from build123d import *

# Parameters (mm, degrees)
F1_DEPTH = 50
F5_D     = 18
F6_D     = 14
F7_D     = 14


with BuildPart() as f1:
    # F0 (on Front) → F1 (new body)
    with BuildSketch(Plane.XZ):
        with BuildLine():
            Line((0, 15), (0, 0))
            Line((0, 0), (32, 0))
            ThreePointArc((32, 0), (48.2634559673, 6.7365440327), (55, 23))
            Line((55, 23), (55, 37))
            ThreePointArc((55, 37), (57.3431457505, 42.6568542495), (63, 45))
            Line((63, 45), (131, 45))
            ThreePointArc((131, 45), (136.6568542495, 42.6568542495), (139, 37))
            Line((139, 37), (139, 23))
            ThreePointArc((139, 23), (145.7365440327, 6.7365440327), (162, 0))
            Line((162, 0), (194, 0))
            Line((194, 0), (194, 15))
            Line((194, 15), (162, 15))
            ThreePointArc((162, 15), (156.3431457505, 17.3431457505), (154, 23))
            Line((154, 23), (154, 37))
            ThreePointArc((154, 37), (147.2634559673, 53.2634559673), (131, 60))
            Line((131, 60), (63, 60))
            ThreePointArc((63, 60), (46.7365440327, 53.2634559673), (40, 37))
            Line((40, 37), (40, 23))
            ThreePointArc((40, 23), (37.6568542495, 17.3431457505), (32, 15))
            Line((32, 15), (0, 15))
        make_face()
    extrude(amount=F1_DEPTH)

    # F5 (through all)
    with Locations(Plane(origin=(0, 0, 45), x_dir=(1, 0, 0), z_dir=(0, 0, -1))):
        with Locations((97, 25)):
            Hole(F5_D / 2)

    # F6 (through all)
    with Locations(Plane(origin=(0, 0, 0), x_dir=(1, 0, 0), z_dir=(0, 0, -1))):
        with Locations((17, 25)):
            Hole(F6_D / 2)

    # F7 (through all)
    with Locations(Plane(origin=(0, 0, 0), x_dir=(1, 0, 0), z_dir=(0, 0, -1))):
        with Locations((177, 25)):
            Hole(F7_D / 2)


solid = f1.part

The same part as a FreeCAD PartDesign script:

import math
import FreeCAD as App
import Part
import Sketcher
from FreeCAD import Vector
Q = App.Units.Quantity

doc = App.newDocument("Part")
body = doc.addObject("PartDesign::Body", "Body")

# Sketch on XZ plane
sketch1 = doc.addObject("Sketcher::SketchObject", "Sketch")
body.addObject(sketch1)
sketch1.AttachmentSupport = (doc.XZ_Plane, [""])
sketch1.MapMode = "FlatFace"
sketch1.addGeometry([
    Part.LineSegment(Vector(0, 15, 0), Vector(0, 0, 0)),  # 0
    Part.LineSegment(Vector(0, 0, 0), Vector(32, 0, 0)),  # 1
    Part.ArcOfCircle(Part.Circle(Vector(32, 23, 0), Vector(0, 0, 1), 23), math.radians(-90), math.radians(0)),  # 2
    Part.LineSegment(Vector(55, 23, 0), Vector(55, 37, 0)),  # 3
    Part.ArcOfCircle(Part.Circle(Vector(63, 37, 0), Vector(0, 0, 1), 8), math.radians(90), math.radians(180)),  # 4
    Part.LineSegment(Vector(63, 45, 0), Vector(131, 45, 0)),  # 5
    Part.ArcOfCircle(Part.Circle(Vector(131, 37, 0), Vector(0, 0, 1), 8), math.radians(0), math.radians(90)),  # 6
    Part.LineSegment(Vector(139, 37, 0), Vector(139, 23, 0)),  # 7
    Part.ArcOfCircle(Part.Circle(Vector(162, 23, 0), Vector(0, 0, 1), 23), math.radians(180), math.radians(270)),  # 8
    Part.LineSegment(Vector(162, 0, 0), Vector(194, 0, 0)),  # 9
    Part.LineSegment(Vector(194, 0, 0), Vector(194, 15, 0)),  # 10
    Part.LineSegment(Vector(194, 15, 0), Vector(162, 15, 0)),  # 11
    Part.ArcOfCircle(Part.Circle(Vector(162, 23, 0), Vector(0, 0, 1), 8), math.radians(180), math.radians(270)),  # 12
    Part.LineSegment(Vector(154, 23, 0), Vector(154, 37, 0)),  # 13
    Part.ArcOfCircle(Part.Circle(Vector(131, 37, 0), Vector(0, 0, 1), 23), math.radians(0), math.radians(90)),  # 14
    Part.LineSegment(Vector(131, 60, 0), Vector(63, 60, 0)),  # 15
    Part.ArcOfCircle(Part.Circle(Vector(63, 37, 0), Vector(0, 0, 1), 23), math.radians(90), math.radians(180)),  # 16
    Part.LineSegment(Vector(40, 37, 0), Vector(40, 23, 0)),  # 17
    Part.ArcOfCircle(Part.Circle(Vector(32, 23, 0), Vector(0, 0, 1), 8), math.radians(-90), math.radians(0)),  # 18
    Part.LineSegment(Vector(32, 15, 0), Vector(0, 15, 0)),  # 19
], False)
sketch1.addConstraint([
    Sketcher.Constraint("Coincident", 0, 2, 1, 1),
    Sketcher.Constraint("Tangent", 1, 2, 2, 1),
    Sketcher.Constraint("Tangent", 2, 2, 3, 1),
    Sketcher.Constraint("Tangent", 3, 2, 4, 2),
    Sketcher.Constraint("Tangent", 4, 1, 5, 1),
    Sketcher.Constraint("Tangent", 5, 2, 6, 2),
    Sketcher.Constraint("Tangent", 6, 1, 7, 1),
    Sketcher.Constraint("Tangent", 7, 2, 8, 1),
    Sketcher.Constraint("Tangent", 8, 2, 9, 1),
    Sketcher.Constraint("Coincident", 9, 2, 10, 1),
    Sketcher.Constraint("Coincident", 10, 2, 11, 1),
    Sketcher.Constraint("Tangent", 11, 2, 12, 2),
    Sketcher.Constraint("Tangent", 12, 1, 13, 1),
    Sketcher.Constraint("Tangent", 13, 2, 14, 1),
    Sketcher.Constraint("Tangent", 14, 2, 15, 1),
    Sketcher.Constraint("Tangent", 15, 2, 16, 1),
    Sketcher.Constraint("Tangent", 16, 2, 17, 1),
    Sketcher.Constraint("Tangent", 17, 2, 18, 2),
    Sketcher.Constraint("Tangent", 18, 1, 19, 1),
    Sketcher.Constraint("Coincident", 19, 2, 0, 1),
    Sketcher.Constraint("Vertical", 0),
    Sketcher.Constraint("Horizontal", 1),
    Sketcher.Constraint("Vertical", 3),
    Sketcher.Constraint("Horizontal", 5),
    Sketcher.Constraint("Vertical", 7),
    Sketcher.Constraint("Horizontal", 9),
    Sketcher.Constraint("Vertical", 10),
    Sketcher.Constraint("Horizontal", 11),
    Sketcher.Constraint("Vertical", 13),
    Sketcher.Constraint("Horizontal", 15),
    Sketcher.Constraint("Vertical", 17),
    Sketcher.Constraint("Horizontal", 19),
    Sketcher.Constraint("Coincident", 0, 2, -1, 1),
    Sketcher.Constraint("Coincident", 12, 3, 8, 3),
    Sketcher.Constraint("Coincident", 14, 3, 6, 3),
    Sketcher.Constraint("Coincident", 16, 3, 4, 3),
    Sketcher.Constraint("Coincident", 18, 3, 2, 3),
    Sketcher.Constraint("Equal", 4, 6),
    Sketcher.Constraint("Equal", 2, 8),
    Sketcher.Constraint("Equal", 6, 12),
    Sketcher.Constraint("PointOnObject", 8, 2, -1),
    Sketcher.Constraint("Equal", 1, 9),
    Sketcher.Constraint("Radius", 2, Q("23 mm")),
    Sketcher.Constraint("Radius", 4, Q("8 mm")),
    Sketcher.Constraint("DistanceX", 1, 1, 1, 2, Q("32 mm")),
    Sketcher.Constraint("DistanceX", 5, 1, 5, 2, Q("68 mm")),
    Sketcher.Constraint("DistanceY", 3, 1, 3, 2, Q("14 mm")),
])
pad1 = doc.addObject("PartDesign::Pad", "Pad")
body.addObject(pad1)
pad1.Profile = sketch1
pad1.Length = 50

# Sketch on XY plane
sketch2 = doc.addObject("Sketcher::SketchObject", "Sketch001")
body.addObject(sketch2)
sketch2.AttachmentSupport = (doc.XY_Plane, [""])
sketch2.MapMode = "FlatFace"
sketch2.AttachmentOffset = App.Placement(Vector(0, 0, 45), App.Rotation())
sketch2.addGeometry(Part.Circle(Vector(97, -25, 0), Vector(0, 0, 1), 9), False)
sketch2.addConstraint([
    Sketcher.Constraint("Diameter", 0, Q("18 mm")),
    Sketcher.Constraint("DistanceX", -1, 1, 0, 3, Q("97 mm")),
    Sketcher.Constraint("DistanceY", 0, 3, -1, 1, Q("25 mm")),
])
doc.recompute()
hole = doc.addObject("PartDesign::Hole", "Hole")
body.addObject(hole)
hole.Profile = sketch2
hole.ThreadType = "None"
hole.Diameter = 18
hole.DepthType = "ThroughAll"
hole.Reversed = True

# Sketch on XY plane
sketch3 = doc.addObject("Sketcher::SketchObject", "Sketch002")
body.addObject(sketch3)
sketch3.AttachmentSupport = (doc.XY_Plane, [""])
sketch3.MapMode = "FlatFace"
sketch3.addGeometry(Part.Circle(Vector(17, -25, 0), Vector(0, 0, 1), 7), False)
sketch3.addConstraint([
    Sketcher.Constraint("Diameter", 0, Q("14 mm")),
    Sketcher.Constraint("DistanceX", -1, 1, 0, 3, Q("17 mm")),
    Sketcher.Constraint("DistanceY", 0, 3, -1, 1, Q("25 mm")),
])
doc.recompute()
hole2 = doc.addObject("PartDesign::Hole", "Hole001")
body.addObject(hole2)
hole2.Profile = sketch3
hole2.ThreadType = "None"
hole2.Diameter = 14
hole2.DepthType = "ThroughAll"
hole2.Reversed = True

# Sketch on XY plane
sketch4 = doc.addObject("Sketcher::SketchObject", "Sketch003")
body.addObject(sketch4)
sketch4.AttachmentSupport = (doc.XY_Plane, [""])
sketch4.MapMode = "FlatFace"
sketch4.addGeometry(Part.Circle(Vector(177, -25, 0), Vector(0, 0, 1), 7), False)
sketch4.addConstraint([
    Sketcher.Constraint("Diameter", 0, Q("14 mm")),
    Sketcher.Constraint("DistanceX", -1, 1, 0, 3, Q("177 mm")),
    Sketcher.Constraint("DistanceY", 0, 3, -1, 1, Q("25 mm")),
])
doc.recompute()
hole3 = doc.addObject("PartDesign::Hole", "Hole002")
body.addObject(hole3)
hole3.Profile = sketch4
hole3.ThreadType = "None"
hole3.Diameter = 14
hole3.DepthType = "ThroughAll"
hole3.Reversed = True

doc.recompute()
